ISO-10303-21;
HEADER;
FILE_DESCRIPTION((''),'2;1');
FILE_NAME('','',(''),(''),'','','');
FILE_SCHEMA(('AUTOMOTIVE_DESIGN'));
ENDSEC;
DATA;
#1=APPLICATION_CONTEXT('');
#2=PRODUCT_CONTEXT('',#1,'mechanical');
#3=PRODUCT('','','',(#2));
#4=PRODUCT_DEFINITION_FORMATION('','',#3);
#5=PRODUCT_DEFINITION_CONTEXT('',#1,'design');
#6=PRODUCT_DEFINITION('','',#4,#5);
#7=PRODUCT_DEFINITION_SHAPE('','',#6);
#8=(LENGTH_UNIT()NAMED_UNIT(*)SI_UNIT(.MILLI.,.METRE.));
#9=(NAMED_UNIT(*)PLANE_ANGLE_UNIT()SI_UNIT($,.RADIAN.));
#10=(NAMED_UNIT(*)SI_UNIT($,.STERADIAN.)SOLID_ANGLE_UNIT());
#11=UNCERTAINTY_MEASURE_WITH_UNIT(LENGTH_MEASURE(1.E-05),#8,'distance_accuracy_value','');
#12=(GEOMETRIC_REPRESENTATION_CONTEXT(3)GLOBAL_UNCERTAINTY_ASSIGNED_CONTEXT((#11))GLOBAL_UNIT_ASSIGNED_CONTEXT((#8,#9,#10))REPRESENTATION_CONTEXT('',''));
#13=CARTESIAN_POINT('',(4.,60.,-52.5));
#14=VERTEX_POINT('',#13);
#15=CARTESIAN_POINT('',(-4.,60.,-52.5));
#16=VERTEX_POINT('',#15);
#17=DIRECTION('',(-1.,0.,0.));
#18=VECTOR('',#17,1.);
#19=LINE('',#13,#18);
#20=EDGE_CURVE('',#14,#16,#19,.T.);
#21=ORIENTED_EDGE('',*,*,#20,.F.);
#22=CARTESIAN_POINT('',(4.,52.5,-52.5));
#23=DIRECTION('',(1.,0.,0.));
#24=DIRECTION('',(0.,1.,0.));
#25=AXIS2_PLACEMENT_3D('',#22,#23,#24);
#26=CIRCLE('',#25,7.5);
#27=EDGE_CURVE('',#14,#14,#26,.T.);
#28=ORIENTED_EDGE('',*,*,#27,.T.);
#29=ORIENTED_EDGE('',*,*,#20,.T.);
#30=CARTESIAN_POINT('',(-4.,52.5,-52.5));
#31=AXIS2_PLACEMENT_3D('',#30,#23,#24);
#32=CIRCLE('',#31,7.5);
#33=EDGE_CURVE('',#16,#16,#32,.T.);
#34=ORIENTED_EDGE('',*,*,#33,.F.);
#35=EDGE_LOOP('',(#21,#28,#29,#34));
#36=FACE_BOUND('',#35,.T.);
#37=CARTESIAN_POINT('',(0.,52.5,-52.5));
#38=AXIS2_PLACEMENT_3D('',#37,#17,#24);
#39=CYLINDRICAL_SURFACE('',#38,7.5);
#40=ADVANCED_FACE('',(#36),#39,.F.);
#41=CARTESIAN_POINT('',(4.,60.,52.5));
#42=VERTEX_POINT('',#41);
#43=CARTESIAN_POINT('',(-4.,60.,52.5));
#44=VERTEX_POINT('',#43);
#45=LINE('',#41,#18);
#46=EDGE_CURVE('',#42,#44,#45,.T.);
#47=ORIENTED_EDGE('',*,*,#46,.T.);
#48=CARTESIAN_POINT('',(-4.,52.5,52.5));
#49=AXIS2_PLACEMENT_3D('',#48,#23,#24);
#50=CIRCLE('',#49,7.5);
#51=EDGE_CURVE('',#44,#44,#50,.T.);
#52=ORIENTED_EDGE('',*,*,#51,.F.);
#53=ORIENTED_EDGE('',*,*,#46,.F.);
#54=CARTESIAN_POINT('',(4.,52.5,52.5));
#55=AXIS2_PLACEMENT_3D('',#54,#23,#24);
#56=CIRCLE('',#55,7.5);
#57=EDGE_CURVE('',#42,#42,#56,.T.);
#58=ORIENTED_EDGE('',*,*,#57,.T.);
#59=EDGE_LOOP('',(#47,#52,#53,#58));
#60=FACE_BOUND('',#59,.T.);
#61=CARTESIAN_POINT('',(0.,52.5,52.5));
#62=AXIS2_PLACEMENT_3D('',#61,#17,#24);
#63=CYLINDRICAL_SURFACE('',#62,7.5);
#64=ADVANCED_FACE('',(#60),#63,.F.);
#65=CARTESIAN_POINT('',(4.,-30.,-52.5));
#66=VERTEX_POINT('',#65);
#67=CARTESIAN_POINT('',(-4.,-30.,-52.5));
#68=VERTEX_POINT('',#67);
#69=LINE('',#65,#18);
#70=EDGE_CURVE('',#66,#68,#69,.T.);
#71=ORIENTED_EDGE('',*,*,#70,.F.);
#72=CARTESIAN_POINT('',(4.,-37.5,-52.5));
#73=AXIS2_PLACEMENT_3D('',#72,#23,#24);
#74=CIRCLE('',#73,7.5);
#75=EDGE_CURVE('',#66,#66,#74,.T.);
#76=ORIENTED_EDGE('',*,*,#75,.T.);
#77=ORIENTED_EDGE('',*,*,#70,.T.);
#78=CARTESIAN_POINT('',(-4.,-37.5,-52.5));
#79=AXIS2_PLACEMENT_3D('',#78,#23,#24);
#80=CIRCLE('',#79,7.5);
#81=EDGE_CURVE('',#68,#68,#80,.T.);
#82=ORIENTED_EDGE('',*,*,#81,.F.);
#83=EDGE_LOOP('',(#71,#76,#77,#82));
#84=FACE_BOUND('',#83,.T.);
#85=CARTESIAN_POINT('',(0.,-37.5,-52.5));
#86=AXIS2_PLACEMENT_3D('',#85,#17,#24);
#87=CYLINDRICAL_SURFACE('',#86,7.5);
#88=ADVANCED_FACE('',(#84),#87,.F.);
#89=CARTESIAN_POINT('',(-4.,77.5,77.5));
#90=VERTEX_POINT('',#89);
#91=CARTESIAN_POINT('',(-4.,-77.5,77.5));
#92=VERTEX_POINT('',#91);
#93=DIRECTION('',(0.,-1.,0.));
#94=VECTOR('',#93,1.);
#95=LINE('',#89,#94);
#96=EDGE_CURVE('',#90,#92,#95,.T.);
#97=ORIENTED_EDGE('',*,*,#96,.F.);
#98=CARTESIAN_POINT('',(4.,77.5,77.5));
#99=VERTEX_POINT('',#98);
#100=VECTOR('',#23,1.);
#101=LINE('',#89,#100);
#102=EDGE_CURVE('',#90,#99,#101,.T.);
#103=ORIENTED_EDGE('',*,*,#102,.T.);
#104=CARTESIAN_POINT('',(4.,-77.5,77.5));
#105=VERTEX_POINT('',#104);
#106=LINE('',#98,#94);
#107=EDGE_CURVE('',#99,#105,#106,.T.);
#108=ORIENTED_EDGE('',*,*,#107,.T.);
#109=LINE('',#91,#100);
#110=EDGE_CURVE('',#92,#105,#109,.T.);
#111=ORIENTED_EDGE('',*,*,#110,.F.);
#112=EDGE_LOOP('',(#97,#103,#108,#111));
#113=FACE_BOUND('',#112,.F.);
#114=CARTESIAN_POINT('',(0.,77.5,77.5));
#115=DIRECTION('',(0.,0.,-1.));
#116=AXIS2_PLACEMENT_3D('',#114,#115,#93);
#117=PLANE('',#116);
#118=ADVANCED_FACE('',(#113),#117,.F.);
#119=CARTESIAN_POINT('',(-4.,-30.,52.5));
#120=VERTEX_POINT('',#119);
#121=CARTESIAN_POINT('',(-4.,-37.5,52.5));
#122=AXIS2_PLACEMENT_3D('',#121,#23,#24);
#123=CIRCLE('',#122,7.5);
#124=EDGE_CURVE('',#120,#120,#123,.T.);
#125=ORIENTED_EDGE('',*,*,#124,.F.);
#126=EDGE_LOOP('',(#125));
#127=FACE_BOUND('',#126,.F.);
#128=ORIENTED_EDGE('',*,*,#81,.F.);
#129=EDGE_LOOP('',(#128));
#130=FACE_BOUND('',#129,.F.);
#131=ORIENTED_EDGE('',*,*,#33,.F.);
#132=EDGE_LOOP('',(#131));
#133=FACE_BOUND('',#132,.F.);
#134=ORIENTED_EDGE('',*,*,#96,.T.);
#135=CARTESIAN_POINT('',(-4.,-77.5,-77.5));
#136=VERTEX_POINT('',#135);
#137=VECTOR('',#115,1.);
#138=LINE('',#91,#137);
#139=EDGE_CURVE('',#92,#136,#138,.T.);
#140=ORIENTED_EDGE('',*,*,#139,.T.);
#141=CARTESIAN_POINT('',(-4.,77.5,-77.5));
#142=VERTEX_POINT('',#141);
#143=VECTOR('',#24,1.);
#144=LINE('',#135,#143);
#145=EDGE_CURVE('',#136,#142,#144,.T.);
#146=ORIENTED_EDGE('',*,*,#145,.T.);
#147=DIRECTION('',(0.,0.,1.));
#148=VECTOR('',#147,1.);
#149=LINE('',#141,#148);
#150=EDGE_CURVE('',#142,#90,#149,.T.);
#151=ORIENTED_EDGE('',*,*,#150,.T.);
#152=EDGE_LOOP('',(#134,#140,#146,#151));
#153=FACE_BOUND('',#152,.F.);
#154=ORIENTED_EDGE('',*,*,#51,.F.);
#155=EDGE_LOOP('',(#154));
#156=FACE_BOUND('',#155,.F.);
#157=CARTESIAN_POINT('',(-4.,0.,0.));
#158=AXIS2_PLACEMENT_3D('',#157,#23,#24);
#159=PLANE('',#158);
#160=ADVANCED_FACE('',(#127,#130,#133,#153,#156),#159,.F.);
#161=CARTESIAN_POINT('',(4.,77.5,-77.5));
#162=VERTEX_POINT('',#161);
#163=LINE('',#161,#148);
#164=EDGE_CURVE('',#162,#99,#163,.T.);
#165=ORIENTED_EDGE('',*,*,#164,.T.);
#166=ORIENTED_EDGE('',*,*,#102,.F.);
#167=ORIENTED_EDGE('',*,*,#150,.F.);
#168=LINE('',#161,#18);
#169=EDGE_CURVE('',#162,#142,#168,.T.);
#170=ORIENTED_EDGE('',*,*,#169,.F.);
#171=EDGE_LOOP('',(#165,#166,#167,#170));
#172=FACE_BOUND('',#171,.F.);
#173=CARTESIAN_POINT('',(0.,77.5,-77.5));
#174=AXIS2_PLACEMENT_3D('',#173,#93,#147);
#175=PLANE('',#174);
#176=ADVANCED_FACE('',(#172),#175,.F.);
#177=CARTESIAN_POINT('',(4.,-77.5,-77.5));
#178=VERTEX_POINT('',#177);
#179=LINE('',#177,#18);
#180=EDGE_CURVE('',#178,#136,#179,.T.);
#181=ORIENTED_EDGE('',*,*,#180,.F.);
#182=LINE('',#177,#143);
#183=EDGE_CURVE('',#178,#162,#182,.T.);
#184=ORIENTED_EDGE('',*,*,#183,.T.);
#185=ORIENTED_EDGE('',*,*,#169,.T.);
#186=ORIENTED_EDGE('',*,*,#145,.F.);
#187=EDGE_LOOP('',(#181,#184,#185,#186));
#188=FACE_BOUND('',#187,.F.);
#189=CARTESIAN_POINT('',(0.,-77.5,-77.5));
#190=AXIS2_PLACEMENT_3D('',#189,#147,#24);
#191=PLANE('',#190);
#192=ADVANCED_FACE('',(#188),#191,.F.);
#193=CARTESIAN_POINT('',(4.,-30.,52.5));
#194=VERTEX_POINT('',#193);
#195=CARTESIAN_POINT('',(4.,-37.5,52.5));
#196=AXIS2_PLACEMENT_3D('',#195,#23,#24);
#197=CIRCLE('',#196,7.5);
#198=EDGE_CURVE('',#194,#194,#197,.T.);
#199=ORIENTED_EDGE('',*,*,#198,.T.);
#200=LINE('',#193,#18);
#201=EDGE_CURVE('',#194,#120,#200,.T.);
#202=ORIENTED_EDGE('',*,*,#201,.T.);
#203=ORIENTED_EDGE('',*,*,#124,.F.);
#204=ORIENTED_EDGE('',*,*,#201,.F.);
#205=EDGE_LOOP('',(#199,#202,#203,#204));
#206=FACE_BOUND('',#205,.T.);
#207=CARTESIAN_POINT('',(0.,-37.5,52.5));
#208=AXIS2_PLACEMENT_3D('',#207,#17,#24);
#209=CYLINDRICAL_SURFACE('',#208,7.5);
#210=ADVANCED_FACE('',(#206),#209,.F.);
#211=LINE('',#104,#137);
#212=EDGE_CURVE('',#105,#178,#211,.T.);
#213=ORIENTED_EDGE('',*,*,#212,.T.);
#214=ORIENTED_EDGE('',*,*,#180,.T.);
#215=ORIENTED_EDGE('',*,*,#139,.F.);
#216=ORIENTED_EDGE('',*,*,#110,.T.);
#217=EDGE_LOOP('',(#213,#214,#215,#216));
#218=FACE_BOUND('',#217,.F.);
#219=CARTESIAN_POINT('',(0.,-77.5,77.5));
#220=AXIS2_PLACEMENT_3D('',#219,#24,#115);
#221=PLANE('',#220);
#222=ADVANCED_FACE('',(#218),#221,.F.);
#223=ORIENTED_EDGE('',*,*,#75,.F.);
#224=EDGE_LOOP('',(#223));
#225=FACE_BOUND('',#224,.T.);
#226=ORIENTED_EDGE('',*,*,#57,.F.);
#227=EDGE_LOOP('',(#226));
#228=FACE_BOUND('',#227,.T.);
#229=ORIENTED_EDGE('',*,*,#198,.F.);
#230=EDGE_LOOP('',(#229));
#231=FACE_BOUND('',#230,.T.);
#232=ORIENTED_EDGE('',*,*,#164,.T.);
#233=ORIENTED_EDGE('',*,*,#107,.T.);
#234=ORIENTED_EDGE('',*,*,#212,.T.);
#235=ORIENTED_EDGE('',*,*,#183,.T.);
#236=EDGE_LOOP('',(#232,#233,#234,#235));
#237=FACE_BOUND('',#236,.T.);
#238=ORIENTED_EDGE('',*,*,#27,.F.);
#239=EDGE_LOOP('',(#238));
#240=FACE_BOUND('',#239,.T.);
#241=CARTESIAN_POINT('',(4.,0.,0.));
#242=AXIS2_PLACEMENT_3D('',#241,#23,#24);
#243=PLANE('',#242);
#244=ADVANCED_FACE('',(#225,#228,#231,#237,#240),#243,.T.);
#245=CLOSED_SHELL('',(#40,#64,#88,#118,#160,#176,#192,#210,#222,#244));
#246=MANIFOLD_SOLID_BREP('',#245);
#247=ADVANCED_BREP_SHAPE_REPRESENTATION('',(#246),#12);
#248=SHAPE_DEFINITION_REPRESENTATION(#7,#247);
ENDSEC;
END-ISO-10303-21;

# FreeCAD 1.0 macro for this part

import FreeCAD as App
import Part
import Sketcher

V = App.Vector

doc = App.newDocument("Part")
params = doc.addObject("Spreadsheet::Sheet", "Params")
for row, (alias, value) in enumerate([
    ("sketch1_diameter", "15 mm"),
    ("sketch1_width", "155 mm"),
    ("pad1_length", "8 mm"),
], start=1):
    params.set(f"A{row}", alias)
    params.set(f"B{row}", "=" + value)
    params.setAlias(f"B{row}", alias)

body = doc.addObject("PartDesign::Body", "Body")

# Sketch on YZ plane
sketch1 = body.newObject("Sketcher::SketchObject", "Sketch")
sketch1.AttachmentSupport = (doc.getObject("YZ_Plane"), [""])
sketch1.MapMode = "FlatFace"
sketch1.addGeometry(Part.LineSegment(V(77.5, -77.5, 0), V(77.5, 77.5, 0)), False)
sketch1.addGeometry(Part.LineSegment(V(77.5, 77.5, 0), V(-77.5, 77.5, 0)), False)
sketch1.addGeometry(Part.LineSegment(V(-77.5, 77.5, 0), V(-77.5, -77.5, 0)), False)
sketch1.addGeometry(Part.LineSegment(V(-77.5, -77.5, 0), V(77.5, -77.5, 0)), False)
sketch1.addGeometry(Part.Circle(V(-37.5, -52.5, 0), V(0, 0, 1), 7.5), False)
sketch1.addGeometry(Part.Circle(V(52.5, -52.5, 0), V(0, 0, 1), 7.5), False)
sketch1.addGeometry(Part.Circle(V(-37.5, 52.5, 0), V(0, 0, 1), 7.5), False)
sketch1.addGeometry(Part.Circle(V(52.5, 52.5, 0), V(0, 0, 1), 7.5), False)
sketch1.addConstraint(Sketcher.Constraint("Coincident", 0, 2, 1, 1))
sketch1.addConstraint(Sketcher.Constraint("Coincident", 1, 2, 2, 1))
sketch1.addConstraint(Sketcher.Constraint("Coincident", 2, 2, 3, 1))
sketch1.addConstraint(Sketcher.Constraint("Coincident", 3, 2, 0, 1))
sketch1.addConstraint(Sketcher.Constraint("Vertical", 0))
sketch1.addConstraint(Sketcher.Constraint("Horizontal", 1))
sketch1.addConstraint(Sketcher.Constraint("Vertical", 2))
sketch1.addConstraint(Sketcher.Constraint("Horizontal", 3))
sketch1.addConstraint(Sketcher.Constraint("Equal", 4, 5))
sketch1.addConstraint(Sketcher.Constraint("Equal", 5, 6))
sketch1.addConstraint(Sketcher.Constraint("Equal", 6, 7))
sketch1.addConstraint(Sketcher.Constraint("Symmetric", 0, 2, 2, 2, -1, 1))
sketch1.addConstraint(Sketcher.Constraint("Symmetric", 4, 3, 6, 3, -1))
sketch1.addConstraint(Sketcher.Constraint("Symmetric", 5, 3, 7, 3, -1))
sketch1.addConstraint(Sketcher.Constraint("Horizontal", 4, 3, 5, 3))
sketch1.addConstraint(Sketcher.Constraint("Equal", 3, 0))
sketch1.addConstraint(Sketcher.Constraint("Diameter", 4, 15.0))
sketch1.addConstraint(Sketcher.Constraint("DistanceX", 1, 2, 1, 1, 155.0))
sketch1.addConstraint(Sketcher.Constraint("DistanceX", 4, 3, 5, 3, 90.0))
sketch1.addConstraint(Sketcher.Constraint("DistanceY", 4, 3, 6, 3, 105.0))
sketch1.addConstraint(Sketcher.Constraint("DistanceX", 7, 3, 0, 2, 25.0))
sketch1.setExpression("Constraints[16]", "Params.sketch1_diameter")
sketch1.setExpression("Constraints[17]", "Params.sketch1_width")
pad1 = body.newObject("PartDesign::Pad", "Pad")
pad1.Profile = sketch1
pad1.setExpression("Length", "Params.pad1_length")
pad1.Midplane = True

doc.recompute()
